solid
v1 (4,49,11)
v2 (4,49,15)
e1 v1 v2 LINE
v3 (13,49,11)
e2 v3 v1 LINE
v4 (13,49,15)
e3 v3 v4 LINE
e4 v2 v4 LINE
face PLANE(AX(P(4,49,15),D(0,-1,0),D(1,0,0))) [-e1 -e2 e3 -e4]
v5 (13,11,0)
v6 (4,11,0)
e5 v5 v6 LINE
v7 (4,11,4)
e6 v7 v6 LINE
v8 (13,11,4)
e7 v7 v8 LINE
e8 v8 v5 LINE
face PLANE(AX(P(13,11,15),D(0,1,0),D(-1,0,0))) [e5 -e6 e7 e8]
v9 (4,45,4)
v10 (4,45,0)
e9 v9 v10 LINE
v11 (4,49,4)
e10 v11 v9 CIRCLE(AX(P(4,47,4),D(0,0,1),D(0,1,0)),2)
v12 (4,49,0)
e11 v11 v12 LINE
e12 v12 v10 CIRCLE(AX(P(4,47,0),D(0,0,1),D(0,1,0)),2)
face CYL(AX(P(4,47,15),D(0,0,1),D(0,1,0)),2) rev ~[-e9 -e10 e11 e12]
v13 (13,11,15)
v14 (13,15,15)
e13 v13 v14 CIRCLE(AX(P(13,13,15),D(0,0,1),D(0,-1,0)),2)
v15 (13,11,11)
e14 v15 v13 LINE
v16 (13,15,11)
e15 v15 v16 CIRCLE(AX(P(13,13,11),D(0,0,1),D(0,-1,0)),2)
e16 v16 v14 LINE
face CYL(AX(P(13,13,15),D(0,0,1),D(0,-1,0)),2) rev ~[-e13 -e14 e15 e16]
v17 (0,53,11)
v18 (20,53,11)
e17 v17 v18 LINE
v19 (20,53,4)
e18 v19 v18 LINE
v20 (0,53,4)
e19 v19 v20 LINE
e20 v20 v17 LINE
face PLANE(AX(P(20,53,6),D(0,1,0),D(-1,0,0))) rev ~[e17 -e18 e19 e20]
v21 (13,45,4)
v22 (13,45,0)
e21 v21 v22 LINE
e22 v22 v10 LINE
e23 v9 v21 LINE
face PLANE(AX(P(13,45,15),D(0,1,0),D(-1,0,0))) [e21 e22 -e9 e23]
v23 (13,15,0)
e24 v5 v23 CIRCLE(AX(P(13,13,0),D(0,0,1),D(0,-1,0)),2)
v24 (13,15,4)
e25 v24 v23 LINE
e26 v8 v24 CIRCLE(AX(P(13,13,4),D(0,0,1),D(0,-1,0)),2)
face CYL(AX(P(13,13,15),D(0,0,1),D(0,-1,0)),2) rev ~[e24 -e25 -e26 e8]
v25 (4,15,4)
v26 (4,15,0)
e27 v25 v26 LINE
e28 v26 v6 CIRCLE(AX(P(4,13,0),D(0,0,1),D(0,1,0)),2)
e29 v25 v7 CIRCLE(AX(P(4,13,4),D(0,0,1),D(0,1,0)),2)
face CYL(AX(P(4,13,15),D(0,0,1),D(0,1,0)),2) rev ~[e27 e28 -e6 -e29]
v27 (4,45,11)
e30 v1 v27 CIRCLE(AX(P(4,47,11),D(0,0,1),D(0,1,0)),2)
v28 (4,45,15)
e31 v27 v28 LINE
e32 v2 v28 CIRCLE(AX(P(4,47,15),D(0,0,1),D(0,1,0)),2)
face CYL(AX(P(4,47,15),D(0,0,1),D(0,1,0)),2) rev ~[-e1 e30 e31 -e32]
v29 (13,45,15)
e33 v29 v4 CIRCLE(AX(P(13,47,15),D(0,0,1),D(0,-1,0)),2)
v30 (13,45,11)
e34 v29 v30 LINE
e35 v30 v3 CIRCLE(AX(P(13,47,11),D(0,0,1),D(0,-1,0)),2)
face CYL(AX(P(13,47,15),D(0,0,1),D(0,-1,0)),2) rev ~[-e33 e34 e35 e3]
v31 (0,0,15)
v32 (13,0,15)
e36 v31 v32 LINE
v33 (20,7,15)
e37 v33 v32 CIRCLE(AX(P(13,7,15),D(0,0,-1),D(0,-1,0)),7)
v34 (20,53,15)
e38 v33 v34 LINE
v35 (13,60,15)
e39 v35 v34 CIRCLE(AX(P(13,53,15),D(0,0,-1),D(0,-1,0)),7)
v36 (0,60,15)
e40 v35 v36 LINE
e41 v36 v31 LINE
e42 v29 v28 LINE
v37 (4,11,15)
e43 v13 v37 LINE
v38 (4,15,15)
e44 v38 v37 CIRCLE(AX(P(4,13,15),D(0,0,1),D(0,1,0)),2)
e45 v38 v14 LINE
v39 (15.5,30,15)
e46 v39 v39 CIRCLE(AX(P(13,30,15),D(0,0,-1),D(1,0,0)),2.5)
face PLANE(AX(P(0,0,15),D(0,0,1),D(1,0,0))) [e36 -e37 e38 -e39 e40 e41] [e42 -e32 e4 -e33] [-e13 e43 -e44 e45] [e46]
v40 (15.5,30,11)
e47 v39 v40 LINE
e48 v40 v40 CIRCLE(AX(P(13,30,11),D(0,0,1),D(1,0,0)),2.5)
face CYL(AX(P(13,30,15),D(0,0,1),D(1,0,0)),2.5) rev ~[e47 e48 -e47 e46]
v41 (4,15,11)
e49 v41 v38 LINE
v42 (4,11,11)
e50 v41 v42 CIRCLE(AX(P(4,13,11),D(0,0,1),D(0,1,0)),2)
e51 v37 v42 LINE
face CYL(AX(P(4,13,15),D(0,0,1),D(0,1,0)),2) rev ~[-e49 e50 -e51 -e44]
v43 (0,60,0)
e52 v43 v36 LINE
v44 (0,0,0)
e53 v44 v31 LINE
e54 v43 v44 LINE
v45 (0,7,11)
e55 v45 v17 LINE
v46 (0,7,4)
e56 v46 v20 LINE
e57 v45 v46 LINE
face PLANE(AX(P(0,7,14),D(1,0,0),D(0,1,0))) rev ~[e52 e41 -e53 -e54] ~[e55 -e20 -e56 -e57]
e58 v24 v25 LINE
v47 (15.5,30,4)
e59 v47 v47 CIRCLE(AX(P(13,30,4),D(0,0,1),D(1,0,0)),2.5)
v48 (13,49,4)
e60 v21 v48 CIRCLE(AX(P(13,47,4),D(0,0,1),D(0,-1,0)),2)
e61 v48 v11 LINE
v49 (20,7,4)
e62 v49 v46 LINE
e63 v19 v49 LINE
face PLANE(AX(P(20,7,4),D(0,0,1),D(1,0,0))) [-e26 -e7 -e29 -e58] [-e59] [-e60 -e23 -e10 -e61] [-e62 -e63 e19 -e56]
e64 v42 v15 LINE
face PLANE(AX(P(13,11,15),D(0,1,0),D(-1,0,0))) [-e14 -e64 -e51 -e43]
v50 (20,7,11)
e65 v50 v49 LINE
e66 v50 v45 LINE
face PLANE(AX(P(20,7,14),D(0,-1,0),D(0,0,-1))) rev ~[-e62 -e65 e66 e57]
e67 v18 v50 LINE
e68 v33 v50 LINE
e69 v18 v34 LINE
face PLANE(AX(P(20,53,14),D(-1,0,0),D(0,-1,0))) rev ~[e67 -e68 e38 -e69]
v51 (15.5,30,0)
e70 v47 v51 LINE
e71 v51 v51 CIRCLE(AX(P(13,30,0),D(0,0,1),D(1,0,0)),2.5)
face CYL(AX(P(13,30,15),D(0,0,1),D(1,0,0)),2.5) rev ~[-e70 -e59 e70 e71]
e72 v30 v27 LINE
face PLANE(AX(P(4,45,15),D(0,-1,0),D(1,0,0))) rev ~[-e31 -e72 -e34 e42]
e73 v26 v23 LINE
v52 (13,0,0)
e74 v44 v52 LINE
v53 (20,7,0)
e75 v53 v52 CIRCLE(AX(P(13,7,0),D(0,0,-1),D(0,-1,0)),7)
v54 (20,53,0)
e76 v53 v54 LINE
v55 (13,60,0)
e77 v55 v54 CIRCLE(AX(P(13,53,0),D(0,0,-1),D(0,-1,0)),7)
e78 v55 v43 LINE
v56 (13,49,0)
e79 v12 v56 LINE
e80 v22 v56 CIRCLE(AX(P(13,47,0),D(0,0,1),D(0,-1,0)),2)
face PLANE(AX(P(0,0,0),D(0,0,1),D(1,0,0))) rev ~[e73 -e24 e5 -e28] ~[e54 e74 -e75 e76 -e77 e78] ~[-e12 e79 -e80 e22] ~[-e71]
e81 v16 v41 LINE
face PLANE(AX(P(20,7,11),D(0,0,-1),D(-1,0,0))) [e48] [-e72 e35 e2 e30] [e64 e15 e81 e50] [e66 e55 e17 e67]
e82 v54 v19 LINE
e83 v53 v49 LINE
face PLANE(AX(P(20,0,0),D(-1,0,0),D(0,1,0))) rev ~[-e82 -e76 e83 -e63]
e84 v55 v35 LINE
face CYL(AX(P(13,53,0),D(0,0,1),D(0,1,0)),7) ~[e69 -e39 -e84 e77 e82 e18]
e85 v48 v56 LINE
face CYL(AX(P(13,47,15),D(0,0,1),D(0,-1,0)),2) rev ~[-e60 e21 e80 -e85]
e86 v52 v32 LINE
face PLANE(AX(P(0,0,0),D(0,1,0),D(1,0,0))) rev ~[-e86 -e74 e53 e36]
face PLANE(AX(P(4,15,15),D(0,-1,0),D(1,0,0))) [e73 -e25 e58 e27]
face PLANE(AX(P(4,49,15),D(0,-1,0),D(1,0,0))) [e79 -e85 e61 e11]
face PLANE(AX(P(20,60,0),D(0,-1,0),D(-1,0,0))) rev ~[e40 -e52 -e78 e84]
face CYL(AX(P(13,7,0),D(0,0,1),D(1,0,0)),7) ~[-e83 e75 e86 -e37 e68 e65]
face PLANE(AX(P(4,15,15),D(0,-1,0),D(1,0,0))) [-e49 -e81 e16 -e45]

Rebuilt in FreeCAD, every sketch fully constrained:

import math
import FreeCAD as App
import Part
import Sketcher

V = App.Vector
Q = App.Units.Quantity


def edges_at(feature, points):
    """Names of the edges that pass closest to the given points."""
    edges = feature.Shape.Edges
    near = lambda p: min(range(len(edges)), key=lambda i: edges[i].distToShape(Part.Vertex(*p))[0])
    return sorted({f"Edge{near(p) + 1}" for p in points})


def add_polygon(sketch, points):
    """Adds a closed chain of lines whose ends are joined by coincident constraints."""
    first, n = sketch.GeometryCount, len(points)
    for a, b in zip(points, points[1:] + points[:1]):
        sketch.addGeometry(Part.LineSegment(App.Vector(*a, 0), App.Vector(*b, 0)), False)
    for i in range(n):
        sketch.addConstraint(Sketcher.Constraint("Coincident", first + i, 2, first + (i + 1) % n, 1))

doc = App.newDocument("Part")
body = doc.addObject("PartDesign::Body", "Body")

# Sketch on XY plane
sketch1 = body.newObject("Sketcher::SketchObject", "Sketch")
sketch1.AttachmentSupport = (doc.getObject("XY_Plane"), [""])
sketch1.MapMode = "FlatFace"
add_polygon(sketch1, [(0, 60), (0, 0), (20, 0), (20, 60)])  # lines 0-3
sketch1.addConstraint(Sketcher.Constraint("Vertical", 0))
sketch1.addConstraint(Sketcher.Constraint("Horizontal", 1))
sketch1.addConstraint(Sketcher.Constraint("Vertical", 2))
sketch1.addConstraint(Sketcher.Constraint("Horizontal", 3))
sketch1.addConstraint(Sketcher.Constraint("Coincident", 0, 2, -1, 1))
sketch1.addConstraint(Sketcher.Constraint("DistanceX", 1, 1, 1, 2, Q("20 mm")))
sketch1.addConstraint(Sketcher.Constraint("DistanceY", 0, 2, 0, 1, Q("60 mm")))
pad1 = body.newObject("PartDesign::Pad", "Pad")
pad1.Profile = sketch1
pad1.Length = 15
doc.recompute()

fillet = body.newObject("PartDesign::Fillet", "Fillet")
fillet.Base = (pad1, edges_at(pad1, [(20, 60, 7.5), (20, 0, 7.5)]))
fillet.Radius = 7

# Sketch on XY plane
sketch2 = body.newObject("Sketcher::SketchObject", "Sketch001")
sketch2.AttachmentSupport = (doc.getObject("XY_Plane"), [""])
sketch2.MapMode = "FlatFace"
sketch2.AttachmentOffset = App.Placement(V(0, 0, 15), App.Rotation())
sketch2.addGeometry(Part.ArcOfCircle(Part.Circle(V(13, 47, 0), V(0, 0, 1), 2), math.radians(-90), math.radians(90)), False)
sketch2.addGeometry(Part.LineSegment(V(13, 49, 0), V(4, 49, 0)), False)
sketch2.addGeometry(Part.ArcOfCircle(Part.Circle(V(4, 47, 0), V(0, 0, 1), 2), math.radians(90), math.radians(270)), False)
sketch2.addGeometry(Part.LineSegment(V(4, 45, 0), V(13, 45, 0)), False)
sketch2.addGeometry(Part.Circle(V(13, 30, 0), V(0, 0, 1), 2.5), False)
sketch2.addGeometry(Part.LineSegment(V(4, 11, 0), V(13, 11, 0)), False)
sketch2.addGeometry(Part.ArcOfCircle(Part.Circle(V(13, 13, 0), V(0, 0, 1), 2), math.radians(-90), math.radians(90)), False)
sketch2.addGeometry(Part.LineSegment(V(13, 15, 0), V(4, 15, 0)), False)
sketch2.addGeometry(Part.ArcOfCircle(Part.Circle(V(4, 13, 0), V(0, 0, 1), 2), math.radians(90), math.radians(270)), False)
sketch2.addConstraint(Sketcher.Constraint("Tangent", 0, 2, 1, 1))
sketch2.addConstraint(Sketcher.Constraint("Tangent", 1, 2, 2, 1))
sketch2.addConstraint(Sketcher.Constraint("Tangent", 2, 2, 3, 1))
sketch2.addConstraint(Sketcher.Constraint("Tangent", 3, 2, 0, 1))
sketch2.addConstraint(Sketcher.Constraint("Tangent", 5, 2, 6, 1))
sketch2.addConstraint(Sketcher.Constraint("Tangent", 6, 2, 7, 1))
sketch2.addConstraint(Sketcher.Constraint("Tangent", 7, 2, 8, 1))
sketch2.addConstraint(Sketcher.Constraint("Tangent", 8, 2, 5, 1))
sketch2.addConstraint(Sketcher.Constraint("Horizontal", 1))
sketch2.addConstraint(Sketcher.Constraint("Horizontal", 3))
sketch2.addConstraint(Sketcher.Constraint("Horizontal", 5))
sketch2.addConstraint(Sketcher.Constraint("Horizontal", 7))
sketch2.addConstraint(Sketcher.Constraint("Equal", 2, 6))
sketch2.addConstraint(Sketcher.Constraint("Vertical", 0, 3, 4, 3))
sketch2.addConstraint(Sketcher.Constraint("Vertical", 4, 3, 6, 3))
sketch2.addConstraint(Sketcher.Constraint("Vertical", 2, 3, 8, 3))
sketch2.addConstraint(Sketcher.Constraint("Diameter", 4, Q("5 mm")))
sketch2.addConstraint(Sketcher.Constraint("DistanceX", -1, 1, 0, 3, Q("13 mm")))
sketch2.addConstraint(Sketcher.Constraint("DistanceY", -1, 1, 4, 3, Q("30 mm")))
sketch2.addConstraint(Sketcher.Constraint("DistanceY", -1, 1, 6, 3, Q("13 mm")))
sketch2.addConstraint(Sketcher.Constraint("Radius", 0, Q("2 mm")))
sketch2.addConstraint(Sketcher.Constraint("DistanceY", 6, 2, 3, 2, Q("30 mm")))
sketch2.addConstraint(Sketcher.Constraint("DistanceX", 1, 2, 1, 1, Q("9 mm")))
pocket1 = body.newObject("PartDesign::Pocket", "Pocket")
pocket1.Profile = sketch2
pocket1.Type = "ThroughAll"

# Sketch on YZ plane
sketch3 = body.newObject("Sketcher::SketchObject", "Sketch002")
sketch3.AttachmentSupport = (doc.getObject("YZ_Plane"), [""])
sketch3.MapMode = "FlatFace"
sketch3.AttachmentOffset = App.Placement(V(0, 0, 20), App.Rotation())
add_polygon(sketch3, [(53, 14), (7, 14), (7, 6), (53, 6)])  # lines 0-3
sketch3.addConstraint(Sketcher.Constraint("Horizontal", 0))
sketch3.addConstraint(Sketcher.Constraint("Vertical", 1))
sketch3.addConstraint(Sketcher.Constraint("Horizontal", 2))
sketch3.addConstraint(Sketcher.Constraint("Vertical", 3))
sketch3.addConstraint(Sketcher.Constraint("DistanceX", 0, 2, 0, 1, Q("46 mm")))
sketch3.addConstraint(Sketcher.Constraint("DistanceY", 1, 2, 1, 1, Q("8 mm")))
sketch3.addConstraint(Sketcher.Constraint("DistanceX", -1, 1, 0, 2, Q("7 mm")))
sketch3.addConstraint(Sketcher.Constraint("DistanceY", -1, 1, 0, 2, Q("14 mm")))
pocket2 = body.newObject("PartDesign::Pocket", "Pocket001")
pocket2.Profile = sketch3
pocket2.Length = 20

# Sketch on XY plane
sketch4 = body.newObject("Sketcher::SketchObject", "Sketch003")
sketch4.AttachmentSupport = (doc.getObject("XY_Plane"), [""])
sketch4.MapMode = "FlatFace"
sketch4.AttachmentOffset = App.Placement(V(0, 0, 14), App.Rotation())
add_polygon(sketch4, [(0, 53), (20, 53), (20, 7), (0, 7)])  # lines 0-3
sketch4.addConstraint(Sketcher.Constraint("Horizontal", 0))
sketch4.addConstraint(Sketcher.Constraint("Vertical", 1))
sketch4.addConstraint(Sketcher.Constraint("Horizontal", 2))
sketch4.addConstraint(Sketcher.Constraint("Vertical", 3))
sketch4.addConstraint(Sketcher.Constraint("PointOnObject", 2, 2, -2))
sketch4.addConstraint(Sketcher.Constraint("DistanceX", 0, 1, 0, 2, Q("20 mm")))
sketch4.addConstraint(Sketcher.Constraint("DistanceY", 1, 2, 1, 1, Q("46 mm")))
sketch4.addConstraint(Sketcher.Constraint("DistanceY", -1, 1, 0, 2, Q("53 mm")))
pad2 = body.newObject("PartDesign::Pad", "Pad001")
pad2.Profile = sketch4
pad2.Length = 3
pad2.Reversed = True

# Sketch on XY plane
sketch5 = body.newObject("Sketcher::SketchObject", "Sketch004")
sketch5.AttachmentSupport = (doc.getObject("XY_Plane"), [""])
sketch5.MapMode = "FlatFace"
sketch5.AttachmentOffset = App.Placement(V(0, 0, 15), App.Rotation())
sketch5.addGeometry(Part.Circle(V(13, 30, 0), V(0, 0, 1), 2.5), False)
sketch5.addConstraint(Sketcher.Constraint("Diameter", 0, Q("5 mm")))
sketch5.addConstraint(Sketcher.Constraint("DistanceX", -1, 1, 0, 3, Q("13 mm")))
sketch5.addConstraint(Sketcher.Constraint("DistanceY", -1, 1, 0, 3, Q("30 mm")))
pocket3 = body.newObject("PartDesign::Pocket", "Pocket002")
pocket3.Profile = sketch5
pocket3.Type = "ThroughAll"

# Sketch on XY plane
sketch6 = body.newObject("Sketcher::SketchObject", "Sketch005")
sketch6.AttachmentSupport = (doc.getObject("XY_Plane"), [""])
sketch6.MapMode = "FlatFace"
sketch6.AttachmentOffset = App.Placement(V(0, 0, 15), App.Rotation())
sketch6.addGeometry(Part.LineSegment(V(4, 11, 0), V(13, 11, 0)), False)
sketch6.addGeometry(Part.ArcOfCircle(Part.Circle(V(13, 13, 0), V(0, 0, 1), 2), math.radians(-90), math.radians(90)), False)
sketch6.addGeometry(Part.LineSegment(V(13, 15, 0), V(4, 15, 0)), False)
sketch6.addGeometry(Part.ArcOfCircle(Part.Circle(V(4, 13, 0), V(0, 0, 1), 2), math.radians(90), math.radians(270)), False)
sketch6.addGeometry(Part.LineSegment(V(4, 45, 0), V(13, 45, 0)), False)
sketch6.addGeometry(Part.ArcOfCircle(Part.Circle(V(13, 47, 0), V(0, 0, 1), 2), math.radians(-90), math.radians(90)), False)
sketch6.addGeometry(Part.LineSegment(V(13, 49, 0), V(4, 49, 0)), False)
sketch6.addGeometry(Part.ArcOfCircle(Part.Circle(V(4, 47, 0), V(0, 0, 1), 2), math.radians(90), math.radians(270)), False)
sketch6.addConstraint(Sketcher.Constraint("Tangent", 0, 2, 1, 1))
sketch6.addConstraint(Sketcher.Constraint("Tangent", 1, 2, 2, 1))
sketch6.addConstraint(Sketcher.Constraint("Tangent", 2, 2, 3, 1))
sketch6.addConstraint(Sketcher.Constraint("Tangent", 3, 2, 0, 1))
sketch6.addConstraint(Sketcher.Constraint("Tangent", 4, 2, 5, 1))
sketch6.addConstraint(Sketcher.Constraint("Tangent", 5, 2, 6, 1))
sketch6.addConstraint(Sketcher.Constraint("Tangent", 6, 2, 7, 1))
sketch6.addConstraint(Sketcher.Constraint("Tangent", 7, 2, 4, 1))
sketch6.addConstraint(Sketcher.Constraint("Horizontal", 0))
sketch6.addConstraint(Sketcher.Constraint("Horizontal", 2))
sketch6.addConstraint(Sketcher.Constraint("Horizontal", 4))
sketch6.addConstraint(Sketcher.Constraint("Horizontal", 6))
sketch6.addConstraint(Sketcher.Constraint("Equal", 3, 5))
sketch6.addConstraint(Sketcher.Constraint("Vertical", 1, 3, 5, 3))
sketch6.addConstraint(Sketcher.Constraint("Vertical", 3, 3, 7, 3))
sketch6.addConstraint(Sketcher.Constraint("Radius", 1, Q("2 mm")))
sketch6.addConstraint(Sketcher.Constraint("DistanceX", 0, 1, 0, 2, Q("9 mm")))
sketch6.addConstraint(Sketcher.Constraint("DistanceX", -1, 1, 1, 3, Q("13 mm")))
sketch6.addConstraint(Sketcher.Constraint("DistanceY", -1, 1, 1, 3, Q("13 mm")))
sketch6.addConstraint(Sketcher.Constraint("DistanceY", -1, 1, 5, 3, Q("47 mm")))
pocket4 = body.newObject("PartDesign::Pocket", "Pocket003")
pocket4.Profile = sketch6
pocket4.Type = "ThroughAll"

# Sketch on XY plane
sketch7 = body.newObject("Sketcher::SketchObject", "Sketch006")
sketch7.AttachmentSupport = (doc.getObject("XY_Plane"), [""])
sketch7.MapMode = "FlatFace"
sketch7.AttachmentOffset = App.Placement(V(0, 0, 6), App.Rotation())
add_polygon(sketch7, [(20, 7), (20, 53), (0, 53), (0, 7)])  # lines 0-3
sketch7.addConstraint(Sketcher.Constraint("Vertical", 0))
sketch7.addConstraint(Sketcher.Constraint("Horizontal", 1))
sketch7.addConstraint(Sketcher.Constraint("Vertical", 2))
sketch7.addConstraint(Sketcher.Constraint("Horizontal", 3))
sketch7.addConstraint(Sketcher.Constraint("PointOnObject", 1, 2, -2))
sketch7.addConstraint(Sketcher.Constraint("DistanceX", 1, 2, 1, 1, Q("20 mm")))
sketch7.addConstraint(Sketcher.Constraint("DistanceY", 0, 1, 0, 2, Q("46 mm")))
sketch7.addConstraint(Sketcher.Constraint("DistanceY", -1, 1, 0, 2, Q("53 mm")))
pocket5 = body.newObject("PartDesign::Pocket", "Pocket004")
pocket5.Profile = sketch7
pocket5.Length = 2

doc.recompute()
